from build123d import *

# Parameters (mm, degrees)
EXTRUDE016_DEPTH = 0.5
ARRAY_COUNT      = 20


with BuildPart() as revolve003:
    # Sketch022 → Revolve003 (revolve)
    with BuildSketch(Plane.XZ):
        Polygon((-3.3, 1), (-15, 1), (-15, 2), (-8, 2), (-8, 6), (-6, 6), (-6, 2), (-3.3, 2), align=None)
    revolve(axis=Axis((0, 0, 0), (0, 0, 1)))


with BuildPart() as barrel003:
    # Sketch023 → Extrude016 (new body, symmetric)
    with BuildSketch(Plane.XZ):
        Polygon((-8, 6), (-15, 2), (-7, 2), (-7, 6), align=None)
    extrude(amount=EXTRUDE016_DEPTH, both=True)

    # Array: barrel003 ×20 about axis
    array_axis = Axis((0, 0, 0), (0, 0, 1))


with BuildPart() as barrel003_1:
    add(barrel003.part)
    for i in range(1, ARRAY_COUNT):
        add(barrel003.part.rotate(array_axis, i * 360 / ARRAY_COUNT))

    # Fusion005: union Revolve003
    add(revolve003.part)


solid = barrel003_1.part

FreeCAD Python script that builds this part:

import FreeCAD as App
import Part
import Sketcher

V = App.Vector

doc = App.newDocument("Part")
body = doc.addObject("PartDesign::Body", "Body")

sketch1 = body.newObject("Sketcher::SketchObject", "Sketch")
sketch1.AttachmentSupport = (doc.getObject("XZ_Plane"), [""])
sketch1.MapMode = "FlatFace"
sketch1.addGeometry(Part.LineSegment(V(-15, 1, 0), V(-3.3, 1, 0)), False)
sketch1.addGeometry(Part.LineSegment(V(-3.3, 1, 0), V(-3.3, 2, 0)), False)
sketch1.addGeometry(Part.LineSegment(V(-3.3, 2, 0), V(-6, 2, 0)), False)
sketch1.addGeometry(Part.LineSegment(V(-6, 2, 0), V(-6, 6, 0)), False)
sketch1.addGeometry(Part.LineSegment(V(-6, 6, 0), V(-8, 6, 0)), False)
sketch1.addGeometry(Part.LineSegment(V(-8, 6, 0), V(-8, 2, 0)), False)
sketch1.addGeometry(Part.LineSegment(V(-8, 2, 0), V(-15, 2, 0)), False)
sketch1.addGeometry(Part.LineSegment(V(-15, 2, 0), V(-15, 1, 0)), False)
sketch1.addConstraint(Sketcher.Constraint("Coincident", 0, 2, 1, 1))
sketch1.addConstraint(Sketcher.Constraint("Coincident", 1, 2, 2, 1))
sketch1.addConstraint(Sketcher.Constraint("Coincident", 2, 2, 3, 1))
sketch1.addConstraint(Sketcher.Constraint("Coincident", 3, 2, 4, 1))
sketch1.addConstraint(Sketcher.Constraint("Coincident", 4, 2, 5, 1))
sketch1.addConstraint(Sketcher.Constraint("Coincident", 5, 2, 6, 1))
sketch1.addConstraint(Sketcher.Constraint("Coincident", 6, 2, 7, 1))
sketch1.addConstraint(Sketcher.Constraint("Coincident", 7, 2, 0, 1))
sketch1.addConstraint(Sketcher.Constraint("Horizontal", 0))
sketch1.addConstraint(Sketcher.Constraint("Vertical", 1))
sketch1.addConstraint(Sketcher.Constraint("Horizontal", 2))
sketch1.addConstraint(Sketcher.Constraint("Vertical", 3))
sketch1.addConstraint(Sketcher.Constraint("Horizontal", 4))
sketch1.addConstraint(Sketcher.Constraint("Vertical", 5))
sketch1.addConstraint(Sketcher.Constraint("Horizontal", 6))
sketch1.addConstraint(Sketcher.Constraint("Vertical", 7))
sketch1.addConstraint(Sketcher.Constraint("Horizontal", 2, 2, 5, 2))
sketch1.addConstraint(Sketcher.Constraint("DistanceX", 4, 2, 4, 1, 2.0))
sketch1.addConstraint(Sketcher.Constraint("DistanceX", 6, 2, 6, 1, 7.0))
sketch1.addConstraint(Sketcher.Constraint("DistanceY", 1, 1, 1, 2, 1.0))
sketch1.addConstraint(Sketcher.Constraint("DistanceY", 3, 1, 3, 2, 4.0))
sketch1.addConstraint(Sketcher.Constraint("DistanceX", 0, 1, 0, 2, 11.7))
sketch1.addConstraint(Sketcher.Constraint("DistanceY", -1, 1, 0, 2, 1.0))
sketch1.addConstraint(Sketcher.Constraint("DistanceX", 2, 2, -1, 1, 6.0))
revolution = body.newObject("PartDesign::Revolution", "Revolution")
revolution.Profile = sketch1
revolution.ReferenceAxis = (sketch1, ["V_Axis"])
revolution.Angle = 360
body2 = doc.addObject("PartDesign::Body", "Body001")

sketch2 = body2.newObject("Sketcher::SketchObject", "Sketch001")
sketch2.AttachmentSupport = (doc.getObject("XZ_Plane001"), [""])
sketch2.MapMode = "FlatFace"
sketch2.addGeometry(Part.LineSegment(V(-8, 6, 0), V(-15, 2, 0)), False)
sketch2.addGeometry(Part.LineSegment(V(-15, 2, 0), V(-7, 2, 0)), False)
sketch2.addGeometry(Part.LineSegment(V(-7, 2, 0), V(-7, 6, 0)), False)
sketch2.addGeometry(Part.LineSegment(V(-7, 6, 0), V(-8, 6, 0)), False)
sketch2.addConstraint(Sketcher.Constraint("Coincident", 0, 2, 1, 1))
sketch2.addConstraint(Sketcher.Constraint("Coincident", 1, 2, 2, 1))
sketch2.addConstraint(Sketcher.Constraint("Coincident", 2, 2, 3, 1))
sketch2.addConstraint(Sketcher.Constraint("Coincident", 3, 2, 0, 1))
sketch2.addConstraint(Sketcher.Constraint("Horizontal", 1))
sketch2.addConstraint(Sketcher.Constraint("Vertical", 2))
sketch2.addConstraint(Sketcher.Constraint("Horizontal", 3))
sketch2.addConstraint(Sketcher.Constraint("DistanceX", 1, 1, 1, 2, 8.0))
sketch2.addConstraint(Sketcher.Constraint("DistanceX", 3, 2, 3, 1, 1.0))
sketch2.addConstraint(Sketcher.Constraint("DistanceY", 2, 1, 2, 2, 4.0))
sketch2.addConstraint(Sketcher.Constraint("DistanceX", 0, 2, -1, 1, 15.0))
sketch2.addConstraint(Sketcher.Constraint("DistanceY", -1, 1, 0, 2, 2.0))
pad1 = body2.newObject("PartDesign::Pad", "Pad")
pad1.Profile = sketch2
pad1.Length = 1
pad1.Midplane = True
body3 = doc.addObject("PartDesign::Body", "Body002")
body3.AllowCompound = True
doc.recompute()

body3.BaseFeature = body2
doc.recompute()

body4 = doc.addObject("PartDesign::Body", "Body003")
body4.BaseFeature = body2
body4.Placement = App.Placement(V(0, 0, 0), App.Rotation(V(0, 0, 1), 18))
boolean = body3.newObject("PartDesign::Boolean", "Boolean")
boolean.Type = "Fuse"
boolean.addObjects([body4])
doc.recompute()

body5 = doc.addObject("PartDesign::Body", "Body004")
body5.BaseFeature = body2
body5.Placement = App.Placement(V(0, 0, 0), App.Rotation(V(0, 0, 1), 36))
boolean2 = body3.newObject("PartDesign::Boolean", "Boolean001")
boolean2.Type = "Fuse"
boolean2.addObjects([body5])
doc.recompute()

body6 = doc.addObject("PartDesign::Body", "Body005")
body6.BaseFeature = body2
body6.Placement = App.Placement(V(0, 0, 0), App.Rotation(V(0, 0, 1), 54))
boolean3 = body3.newObject("PartDesign::Boolean", "Boolean002")
boolean3.Type = "Fuse"
boolean3.addObjects([body6])
doc.recompute()

body7 = doc.addObject("PartDesign::Body", "Body006")
body7.BaseFeature = body2
body7.Placement = App.Placement(V(0, 0, 0), App.Rotation(V(0, 0, 1), 72))
boolean4 = body3.newObject("PartDesign::Boolean", "Boolean003")
boolean4.Type = "Fuse"
boolean4.addObjects([body7])
doc.recompute()

body8 = doc.addObject("PartDesign::Body", "Body007")
body8.BaseFeature = body2
body8.Placement = App.Placement(V(0, 0, 0), App.Rotation(V(0, 0, 1), 90))
boolean5 = body3.newObject("PartDesign::Boolean", "Boolean004")
boolean5.Type = "Fuse"
boolean5.addObjects([body8])
doc.recompute()

body9 = doc.addObject("PartDesign::Body", "Body008")
body9.BaseFeature = body2
body9.Placement = App.Placement(V(0, 0, 0), App.Rotation(V(0, 0, 1), 108))
boolean6 = body3.newObject("PartDesign::Boolean", "Boolean005")
boolean6.Type = "Fuse"
boolean6.addObjects([body9])
doc.recompute()

body10 = doc.addObject("PartDesign::Body", "Body009")
body10.BaseFeature = body2
body10.Placement = App.Placement(V(0, 0, 0), App.Rotation(V(0, 0, 1), 126))
boolean7 = body3.newObject("PartDesign::Boolean", "Boolean006")
boolean7.Type = "Fuse"
boolean7.addObjects([body10])
doc.recompute()

body11 = doc.addObject("PartDesign::Body", "Body010")
body11.BaseFeature = body2
body11.Placement = App.Placement(V(0, 0, 0), App.Rotation(V(0, 0, 1), 144))
boolean8 = body3.newObject("PartDesign::Boolean", "Boolean007")
boolean8.Type = "Fuse"
boolean8.addObjects([body11])
doc.recompute()

body12 = doc.addObject("PartDesign::Body", "Body011")
body12.BaseFeature = body2
body12.Placement = App.Placement(V(0, 0, 0), App.Rotation(V(0, 0, 1), 162))
boolean9 = body3.newObject("PartDesign::Boolean", "Boolean008")
boolean9.Type = "Fuse"
boolean9.addObjects([body12])
doc.recompute()

body13 = doc.addObject("PartDesign::Body", "Body012")
body13.BaseFeature = body2
body13.Placement = App.Placement(V(0, 0, 0), App.Rotation(V(0, 0, 1), 180))
boolean10 = body3.newObject("PartDesign::Boolean", "Boolean009")
boolean10.Type = "Fuse"
boolean10.addObjects([body13])
doc.recompute()

body14 = doc.addObject("PartDesign::Body", "Body013")
body14.BaseFeature = body2
body14.Placement = App.Placement(V(0, 0, 0), App.Rotation(V(0, 0, 1), 198))
boolean11 = body3.newObject("PartDesign::Boolean", "Boolean010")
boolean11.Type = "Fuse"
boolean11.addObjects([body14])
doc.recompute()

body15 = doc.addObject("PartDesign::Body", "Body014")
body15.BaseFeature = body2
body15.Placement = App.Placement(V(0, 0, 0), App.Rotation(V(0, 0, 1), 216))
boolean12 = body3.newObject("PartDesign::Boolean", "Boolean011")
boolean12.Type = "Fuse"
boolean12.addObjects([body15])
doc.recompute()

body16 = doc.addObject("PartDesign::Body", "Body015")
body16.BaseFeature = body2
body16.Placement = App.Placement(V(0, 0, 0), App.Rotation(V(0, 0, 1), 234))
boolean13 = body3.newObject("PartDesign::Boolean", "Boolean012")
boolean13.Type = "Fuse"
boolean13.addObjects([body16])
doc.recompute()

body17 = doc.addObject("PartDesign::Body", "Body016")
body17.BaseFeature = body2
body17.Placement = App.Placement(V(0, 0, 0), App.Rotation(V(0, 0, 1), 252))
boolean14 = body3.newObject("PartDesign::Boolean", "Boolean013")
boolean14.Type = "Fuse"
boolean14.addObjects([body17])
doc.recompute()

body18 = doc.addObject("PartDesign::Body", "Body017")
body18.BaseFeature = body2
body18.Placement = App.Placement(V(0, 0, 0), App.Rotation(V(0, 0, 1), 270))
boolean15 = body3.newObject("PartDesign::Boolean", "Boolean014")
boolean15.Type = "Fuse"
boolean15.addObjects([body18])
doc.recompute()

body19 = doc.addObject("PartDesign::Body", "Body018")
body19.BaseFeature = body2
body19.Placement = App.Placement(V(0, 0, 0), App.Rotation(V(0, 0, 1), 288))
boolean16 = body3.newObject("PartDesign::Boolean", "Boolean015")
boolean16.Type = "Fuse"
boolean16.addObjects([body19])
doc.recompute()

body20 = doc.addObject("PartDesign::Body", "Body019")
body20.BaseFeature = body2
body20.Placement = App.Placement(V(0, 0, 0), App.Rotation(V(0, 0, 1), 306))
boolean17 = body3.newObject("PartDesign::Boolean", "Boolean016")
boolean17.Type = "Fuse"
boolean17.addObjects([body20])
doc.recompute()

body21 = doc.addObject("PartDesign::Body", "Body020")
body21.BaseFeature = body2
body21.Placement = App.Placement(V(0, 0, 0), App.Rotation(V(0, 0, 1), 324))
boolean18 = body3.newObject("PartDesign::Boolean", "Boolean017")
boolean18.Type = "Fuse"
boolean18.addObjects([body21])
doc.recompute()

body2.Placement = App.Placement(V(0, 0, 0), App.Rotation(V(0, 0, 1), 342))
boolean19 = body3.newObject("PartDesign::Boolean", "Boolean018")
boolean19.Type = "Fuse"
boolean19.addObjects([body2])
doc.recompute()

boolean20 = body3.newObject("PartDesign::Boolean", "Boolean019")
boolean20.Type = "Fuse"
boolean20.addObjects([body])

doc.recompute()
